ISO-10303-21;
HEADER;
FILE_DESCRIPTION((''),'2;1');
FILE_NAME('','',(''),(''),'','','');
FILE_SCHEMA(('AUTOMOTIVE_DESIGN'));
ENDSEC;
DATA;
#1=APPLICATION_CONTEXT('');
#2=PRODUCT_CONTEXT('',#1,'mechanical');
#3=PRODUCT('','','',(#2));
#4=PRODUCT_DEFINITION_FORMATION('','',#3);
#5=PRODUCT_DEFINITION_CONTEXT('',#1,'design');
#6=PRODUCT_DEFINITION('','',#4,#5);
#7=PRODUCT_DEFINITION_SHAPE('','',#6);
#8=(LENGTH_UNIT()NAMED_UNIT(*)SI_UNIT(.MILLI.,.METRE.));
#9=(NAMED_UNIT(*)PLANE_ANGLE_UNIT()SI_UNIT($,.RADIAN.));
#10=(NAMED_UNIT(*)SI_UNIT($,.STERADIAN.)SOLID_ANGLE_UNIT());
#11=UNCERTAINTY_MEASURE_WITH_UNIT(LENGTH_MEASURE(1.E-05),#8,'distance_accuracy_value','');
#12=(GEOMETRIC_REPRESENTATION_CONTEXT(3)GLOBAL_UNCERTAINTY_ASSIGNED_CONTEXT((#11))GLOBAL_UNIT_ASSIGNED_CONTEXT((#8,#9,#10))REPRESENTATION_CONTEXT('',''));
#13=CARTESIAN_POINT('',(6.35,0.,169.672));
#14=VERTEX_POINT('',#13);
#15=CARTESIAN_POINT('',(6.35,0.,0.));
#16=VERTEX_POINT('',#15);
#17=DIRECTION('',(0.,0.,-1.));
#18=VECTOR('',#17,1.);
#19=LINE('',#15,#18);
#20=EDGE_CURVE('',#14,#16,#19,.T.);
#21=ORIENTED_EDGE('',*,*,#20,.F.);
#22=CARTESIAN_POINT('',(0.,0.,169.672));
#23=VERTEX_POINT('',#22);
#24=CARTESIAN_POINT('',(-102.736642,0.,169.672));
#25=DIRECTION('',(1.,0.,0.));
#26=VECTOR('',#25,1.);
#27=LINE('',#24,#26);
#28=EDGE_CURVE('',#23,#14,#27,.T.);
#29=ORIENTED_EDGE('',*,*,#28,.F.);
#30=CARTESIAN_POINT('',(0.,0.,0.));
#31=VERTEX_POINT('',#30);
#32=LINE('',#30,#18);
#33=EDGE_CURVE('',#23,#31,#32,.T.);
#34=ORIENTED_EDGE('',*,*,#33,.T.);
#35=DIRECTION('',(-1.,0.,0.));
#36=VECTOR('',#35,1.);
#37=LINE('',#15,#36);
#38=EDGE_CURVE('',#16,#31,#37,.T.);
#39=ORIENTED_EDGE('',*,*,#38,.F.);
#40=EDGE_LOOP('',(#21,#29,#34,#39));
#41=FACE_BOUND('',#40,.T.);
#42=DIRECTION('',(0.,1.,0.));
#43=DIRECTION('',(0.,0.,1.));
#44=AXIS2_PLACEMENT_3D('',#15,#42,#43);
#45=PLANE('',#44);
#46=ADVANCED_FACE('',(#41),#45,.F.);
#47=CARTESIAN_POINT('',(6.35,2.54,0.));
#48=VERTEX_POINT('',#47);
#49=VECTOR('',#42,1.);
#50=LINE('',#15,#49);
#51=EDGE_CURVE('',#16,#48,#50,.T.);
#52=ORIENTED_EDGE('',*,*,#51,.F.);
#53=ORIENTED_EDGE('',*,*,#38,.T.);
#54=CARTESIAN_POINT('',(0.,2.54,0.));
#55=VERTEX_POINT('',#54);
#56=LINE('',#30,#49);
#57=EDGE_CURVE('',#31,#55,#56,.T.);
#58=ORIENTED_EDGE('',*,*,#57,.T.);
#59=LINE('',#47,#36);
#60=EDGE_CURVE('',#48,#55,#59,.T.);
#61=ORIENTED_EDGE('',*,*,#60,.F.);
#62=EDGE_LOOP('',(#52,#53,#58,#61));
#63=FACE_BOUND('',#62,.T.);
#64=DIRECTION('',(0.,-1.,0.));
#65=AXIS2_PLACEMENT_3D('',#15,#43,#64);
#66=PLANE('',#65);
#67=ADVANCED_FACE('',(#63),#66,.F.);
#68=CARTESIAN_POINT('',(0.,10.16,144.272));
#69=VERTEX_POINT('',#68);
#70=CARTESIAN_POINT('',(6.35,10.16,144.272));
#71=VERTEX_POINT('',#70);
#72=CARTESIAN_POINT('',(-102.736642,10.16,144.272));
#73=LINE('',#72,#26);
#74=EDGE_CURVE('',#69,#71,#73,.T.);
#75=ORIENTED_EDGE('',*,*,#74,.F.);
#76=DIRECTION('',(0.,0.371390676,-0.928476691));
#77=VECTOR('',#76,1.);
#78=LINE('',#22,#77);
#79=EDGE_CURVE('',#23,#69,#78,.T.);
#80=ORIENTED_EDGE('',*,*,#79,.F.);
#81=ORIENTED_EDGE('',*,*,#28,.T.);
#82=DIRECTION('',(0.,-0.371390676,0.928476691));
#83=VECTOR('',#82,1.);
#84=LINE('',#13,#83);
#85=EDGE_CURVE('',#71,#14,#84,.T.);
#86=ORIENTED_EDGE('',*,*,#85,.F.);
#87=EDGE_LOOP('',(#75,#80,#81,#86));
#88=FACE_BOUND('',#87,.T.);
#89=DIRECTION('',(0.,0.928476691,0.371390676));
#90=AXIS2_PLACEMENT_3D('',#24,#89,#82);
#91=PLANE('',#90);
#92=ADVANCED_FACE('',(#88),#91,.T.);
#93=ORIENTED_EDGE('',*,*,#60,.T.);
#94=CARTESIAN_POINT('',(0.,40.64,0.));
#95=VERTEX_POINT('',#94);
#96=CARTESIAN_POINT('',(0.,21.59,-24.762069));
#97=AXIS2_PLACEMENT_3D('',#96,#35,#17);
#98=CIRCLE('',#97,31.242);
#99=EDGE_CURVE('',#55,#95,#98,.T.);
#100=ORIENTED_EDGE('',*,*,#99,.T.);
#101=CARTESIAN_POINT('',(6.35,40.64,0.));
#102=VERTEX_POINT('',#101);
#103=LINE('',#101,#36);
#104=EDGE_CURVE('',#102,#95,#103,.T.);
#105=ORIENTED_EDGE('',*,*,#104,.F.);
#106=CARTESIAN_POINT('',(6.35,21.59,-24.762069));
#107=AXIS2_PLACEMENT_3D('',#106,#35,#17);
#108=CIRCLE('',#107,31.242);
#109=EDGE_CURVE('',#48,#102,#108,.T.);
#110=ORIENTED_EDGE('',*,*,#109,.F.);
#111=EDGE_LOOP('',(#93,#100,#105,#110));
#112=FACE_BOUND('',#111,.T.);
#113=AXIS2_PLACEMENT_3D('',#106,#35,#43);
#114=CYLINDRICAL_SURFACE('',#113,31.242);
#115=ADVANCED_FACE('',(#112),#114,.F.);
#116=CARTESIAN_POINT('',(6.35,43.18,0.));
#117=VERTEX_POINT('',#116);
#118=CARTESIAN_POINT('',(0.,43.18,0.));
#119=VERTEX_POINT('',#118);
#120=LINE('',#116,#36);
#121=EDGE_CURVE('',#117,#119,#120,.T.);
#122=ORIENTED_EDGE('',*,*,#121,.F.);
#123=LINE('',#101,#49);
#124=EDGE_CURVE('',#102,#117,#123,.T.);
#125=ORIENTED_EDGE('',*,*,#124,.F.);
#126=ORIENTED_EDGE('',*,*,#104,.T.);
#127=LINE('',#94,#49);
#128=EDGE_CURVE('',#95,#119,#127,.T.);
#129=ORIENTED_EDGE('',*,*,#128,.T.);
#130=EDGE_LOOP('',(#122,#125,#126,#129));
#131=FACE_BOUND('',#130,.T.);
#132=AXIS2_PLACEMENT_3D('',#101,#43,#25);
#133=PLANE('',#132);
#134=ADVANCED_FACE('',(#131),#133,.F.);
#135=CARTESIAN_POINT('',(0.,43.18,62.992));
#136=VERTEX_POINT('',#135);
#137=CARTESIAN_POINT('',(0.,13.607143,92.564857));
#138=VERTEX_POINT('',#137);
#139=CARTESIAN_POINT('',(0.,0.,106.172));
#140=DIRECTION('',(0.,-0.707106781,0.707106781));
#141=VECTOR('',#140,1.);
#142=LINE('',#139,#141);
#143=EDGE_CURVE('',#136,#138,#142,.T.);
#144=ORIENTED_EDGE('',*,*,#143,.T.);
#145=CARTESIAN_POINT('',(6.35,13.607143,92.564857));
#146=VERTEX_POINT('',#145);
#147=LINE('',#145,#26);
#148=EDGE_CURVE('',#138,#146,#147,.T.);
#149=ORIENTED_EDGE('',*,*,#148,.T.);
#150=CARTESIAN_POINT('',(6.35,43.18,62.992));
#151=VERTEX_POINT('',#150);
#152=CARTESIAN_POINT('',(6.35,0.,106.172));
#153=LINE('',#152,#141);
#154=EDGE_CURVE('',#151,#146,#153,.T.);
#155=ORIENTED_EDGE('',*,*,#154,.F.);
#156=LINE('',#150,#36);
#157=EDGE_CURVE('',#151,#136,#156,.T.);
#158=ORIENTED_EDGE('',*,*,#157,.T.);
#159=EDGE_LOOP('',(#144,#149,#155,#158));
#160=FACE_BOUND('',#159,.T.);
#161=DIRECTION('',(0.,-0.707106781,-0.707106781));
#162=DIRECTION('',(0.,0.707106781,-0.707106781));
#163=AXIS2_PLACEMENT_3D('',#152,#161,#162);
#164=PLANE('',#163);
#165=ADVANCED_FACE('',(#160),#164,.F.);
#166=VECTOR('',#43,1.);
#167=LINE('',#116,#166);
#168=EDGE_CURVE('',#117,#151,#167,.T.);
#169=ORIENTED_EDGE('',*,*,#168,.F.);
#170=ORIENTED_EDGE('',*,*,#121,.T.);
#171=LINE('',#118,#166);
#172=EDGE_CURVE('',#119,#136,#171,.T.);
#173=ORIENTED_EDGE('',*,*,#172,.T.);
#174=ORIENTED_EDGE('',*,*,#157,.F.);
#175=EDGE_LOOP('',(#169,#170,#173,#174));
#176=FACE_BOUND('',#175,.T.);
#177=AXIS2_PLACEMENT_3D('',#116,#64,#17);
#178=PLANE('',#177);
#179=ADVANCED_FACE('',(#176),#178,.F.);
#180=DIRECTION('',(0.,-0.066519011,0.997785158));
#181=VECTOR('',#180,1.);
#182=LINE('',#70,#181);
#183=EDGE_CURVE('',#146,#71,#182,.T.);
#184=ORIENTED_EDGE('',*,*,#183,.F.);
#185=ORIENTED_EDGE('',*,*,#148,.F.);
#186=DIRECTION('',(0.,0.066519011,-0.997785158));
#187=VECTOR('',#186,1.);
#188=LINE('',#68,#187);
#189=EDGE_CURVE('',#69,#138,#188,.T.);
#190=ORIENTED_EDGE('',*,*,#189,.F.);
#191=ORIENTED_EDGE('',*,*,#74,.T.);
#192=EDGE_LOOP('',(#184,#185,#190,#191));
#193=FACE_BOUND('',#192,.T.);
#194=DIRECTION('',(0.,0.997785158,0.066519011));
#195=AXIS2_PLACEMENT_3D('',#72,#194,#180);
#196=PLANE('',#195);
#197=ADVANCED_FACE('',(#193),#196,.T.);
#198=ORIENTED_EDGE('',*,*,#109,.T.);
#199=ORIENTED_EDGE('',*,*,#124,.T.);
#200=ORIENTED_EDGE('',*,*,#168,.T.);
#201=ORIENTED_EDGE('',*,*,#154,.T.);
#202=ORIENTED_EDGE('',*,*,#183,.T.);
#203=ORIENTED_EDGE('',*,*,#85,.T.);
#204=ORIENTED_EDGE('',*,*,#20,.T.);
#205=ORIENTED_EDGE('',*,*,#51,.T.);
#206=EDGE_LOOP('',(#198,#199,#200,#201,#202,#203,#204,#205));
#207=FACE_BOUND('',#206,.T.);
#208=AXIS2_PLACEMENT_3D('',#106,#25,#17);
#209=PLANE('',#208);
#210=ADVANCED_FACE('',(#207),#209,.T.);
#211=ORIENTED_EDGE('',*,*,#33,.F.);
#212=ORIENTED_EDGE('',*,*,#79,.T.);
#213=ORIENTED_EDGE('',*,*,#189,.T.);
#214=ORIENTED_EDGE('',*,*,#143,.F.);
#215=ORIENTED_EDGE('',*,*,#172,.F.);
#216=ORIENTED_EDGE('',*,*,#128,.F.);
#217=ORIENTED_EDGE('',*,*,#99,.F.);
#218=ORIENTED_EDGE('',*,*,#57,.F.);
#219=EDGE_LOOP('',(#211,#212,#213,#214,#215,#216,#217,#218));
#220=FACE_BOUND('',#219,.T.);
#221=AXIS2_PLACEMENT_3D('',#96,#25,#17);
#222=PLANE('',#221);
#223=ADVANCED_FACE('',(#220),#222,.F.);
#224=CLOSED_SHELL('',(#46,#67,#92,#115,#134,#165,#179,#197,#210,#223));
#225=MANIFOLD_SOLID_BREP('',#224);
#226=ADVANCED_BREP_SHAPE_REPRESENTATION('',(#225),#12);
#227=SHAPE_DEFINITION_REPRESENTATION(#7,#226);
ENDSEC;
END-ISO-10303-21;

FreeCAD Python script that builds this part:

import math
import FreeCAD as App
import Part
import Sketcher
from FreeCAD import Vector
Q = App.Units.Quantity


def add_polygon(sketch, points):
    """Adds a closed chain of lines whose ends are joined by coincident constraints."""
    first, n = sketch.GeometryCount, len(points)
    for a, b in zip(points, points[1:] + points[:1]):
        sketch.addGeometry(Part.LineSegment(App.Vector(*a, 0), App.Vector(*b, 0)), False)
    for i in range(n):
        sketch.addConstraint(Sketcher.Constraint("Coincident", first + i, 2, first + (i + 1) % n, 1))

doc = App.newDocument("Part")
body = doc.addObject("PartDesign::Body", "Body")

# Sketch on YZ plane
sketch1 = body.newObject("Sketcher::SketchObject", "Sketch")
sketch1.AttachmentSupport = (doc.getObject("YZ_Plane"), [""])
sketch1.MapMode = "FlatFace"
sketch1.addGeometry([
    Part.LineSegment(Vector(43.2, 63, 0), Vector(0, 106.2, 0)),  # 0
    Part.LineSegment(Vector(0, 106.2, 0), Vector(0, 0, 0)),  # 1
    Part.LineSegment(Vector(0, 0, 0), Vector(2.5, 0, 0)),  # 2
    Part.ArcOfCircle(Part.Circle(Vector(21.6, -24.8, 0), Vector(0, 0, 1), 31.2), math.radians(52), math.radians(128)),  # 3
    Part.LineSegment(Vector(40.6, 0, 0), Vector(43.2, 0, 0)),  # 4
    Part.LineSegment(Vector(43.2, 0, 0), Vector(43.2, 63, 0)),  # 5
], False)
sketch1.addConstraint([
    Sketcher.Constraint("Coincident", 0, 2, 1, 1),
    Sketcher.Constraint("Coincident", 1, 2, 2, 1),
    Sketcher.Constraint("Coincident", 2, 2, 3, 2),
    Sketcher.Constraint("Coincident", 3, 1, 4, 1),
    Sketcher.Constraint("Coincident", 4, 2, 5, 1),
    Sketcher.Constraint("Coincident", 5, 2, 0, 1),
    Sketcher.Constraint("Vertical", 1),
    Sketcher.Constraint("Horizontal", 2),
    Sketcher.Constraint("Horizontal", 4),
    Sketcher.Constraint("Vertical", 5),
    Sketcher.Constraint("Coincident", 1, 2, -1, 1),
    Sketcher.Constraint("PointOnObject", 3, 1, -1),
    Sketcher.Constraint("Equal", 2, 4),
    Sketcher.Constraint("Radius", 3, Q("1.23 in")),
    Sketcher.Constraint("DistanceX", 2, 1, 2, 2, Q("0.1 in")),
    Sketcher.Constraint("Angle", 0, Q("135 deg")),
    Sketcher.Constraint("DistanceY", 1, 2, 1, 1, Q("4.18 in")),
    Sketcher.Constraint("DistanceY", 5, 1, 5, 2, Q("2.48 in")),
])
pad1 = body.newObject("PartDesign::Pad", "Pad")
pad1.Profile = sketch1
pad1.Length = Q("0.25 in")

# Sketch on YZ plane
sketch2 = body.newObject("Sketcher::SketchObject", "Sketch001")
sketch2.AttachmentSupport = (doc.getObject("YZ_Plane"), [""])
sketch2.MapMode = "FlatFace"
sketch2.AttachmentOffset = App.Placement(Vector(0, 0, 0.25 * 25.4), App.Rotation())
add_polygon(sketch2, [(0, 170), (0, 68), (15, 68), (10, 144)])  # lines 0-3
sketch2.addConstraint([
    Sketcher.Constraint("Vertical", 0),
    Sketcher.Constraint("Horizontal", 1),
    Sketcher.Constraint("PointOnObject", 0, 2, -2),
    Sketcher.Constraint("DistanceY", 0, 2, 0, 1, Q("4 in")),
    Sketcher.Constraint("DistanceX", 1, 1, 1, 2, Q("0.6 in")),
    Sketcher.Constraint("DistanceY", 1, 2, 2, 2, Q("3 in")),
    Sketcher.Constraint("DistanceX", -1, 1, 2, 2, Q("0.4 in")),
    Sketcher.Constraint("DistanceY", -1, 1, 0, 2, Q("2.68 in")),
])
pad2 = body.newObject("PartDesign::Pad", "Pad001")
pad2.Profile = sketch2
pad2.Length = Q("0.25 in")
pad2.Reversed = True

doc.recompute()
